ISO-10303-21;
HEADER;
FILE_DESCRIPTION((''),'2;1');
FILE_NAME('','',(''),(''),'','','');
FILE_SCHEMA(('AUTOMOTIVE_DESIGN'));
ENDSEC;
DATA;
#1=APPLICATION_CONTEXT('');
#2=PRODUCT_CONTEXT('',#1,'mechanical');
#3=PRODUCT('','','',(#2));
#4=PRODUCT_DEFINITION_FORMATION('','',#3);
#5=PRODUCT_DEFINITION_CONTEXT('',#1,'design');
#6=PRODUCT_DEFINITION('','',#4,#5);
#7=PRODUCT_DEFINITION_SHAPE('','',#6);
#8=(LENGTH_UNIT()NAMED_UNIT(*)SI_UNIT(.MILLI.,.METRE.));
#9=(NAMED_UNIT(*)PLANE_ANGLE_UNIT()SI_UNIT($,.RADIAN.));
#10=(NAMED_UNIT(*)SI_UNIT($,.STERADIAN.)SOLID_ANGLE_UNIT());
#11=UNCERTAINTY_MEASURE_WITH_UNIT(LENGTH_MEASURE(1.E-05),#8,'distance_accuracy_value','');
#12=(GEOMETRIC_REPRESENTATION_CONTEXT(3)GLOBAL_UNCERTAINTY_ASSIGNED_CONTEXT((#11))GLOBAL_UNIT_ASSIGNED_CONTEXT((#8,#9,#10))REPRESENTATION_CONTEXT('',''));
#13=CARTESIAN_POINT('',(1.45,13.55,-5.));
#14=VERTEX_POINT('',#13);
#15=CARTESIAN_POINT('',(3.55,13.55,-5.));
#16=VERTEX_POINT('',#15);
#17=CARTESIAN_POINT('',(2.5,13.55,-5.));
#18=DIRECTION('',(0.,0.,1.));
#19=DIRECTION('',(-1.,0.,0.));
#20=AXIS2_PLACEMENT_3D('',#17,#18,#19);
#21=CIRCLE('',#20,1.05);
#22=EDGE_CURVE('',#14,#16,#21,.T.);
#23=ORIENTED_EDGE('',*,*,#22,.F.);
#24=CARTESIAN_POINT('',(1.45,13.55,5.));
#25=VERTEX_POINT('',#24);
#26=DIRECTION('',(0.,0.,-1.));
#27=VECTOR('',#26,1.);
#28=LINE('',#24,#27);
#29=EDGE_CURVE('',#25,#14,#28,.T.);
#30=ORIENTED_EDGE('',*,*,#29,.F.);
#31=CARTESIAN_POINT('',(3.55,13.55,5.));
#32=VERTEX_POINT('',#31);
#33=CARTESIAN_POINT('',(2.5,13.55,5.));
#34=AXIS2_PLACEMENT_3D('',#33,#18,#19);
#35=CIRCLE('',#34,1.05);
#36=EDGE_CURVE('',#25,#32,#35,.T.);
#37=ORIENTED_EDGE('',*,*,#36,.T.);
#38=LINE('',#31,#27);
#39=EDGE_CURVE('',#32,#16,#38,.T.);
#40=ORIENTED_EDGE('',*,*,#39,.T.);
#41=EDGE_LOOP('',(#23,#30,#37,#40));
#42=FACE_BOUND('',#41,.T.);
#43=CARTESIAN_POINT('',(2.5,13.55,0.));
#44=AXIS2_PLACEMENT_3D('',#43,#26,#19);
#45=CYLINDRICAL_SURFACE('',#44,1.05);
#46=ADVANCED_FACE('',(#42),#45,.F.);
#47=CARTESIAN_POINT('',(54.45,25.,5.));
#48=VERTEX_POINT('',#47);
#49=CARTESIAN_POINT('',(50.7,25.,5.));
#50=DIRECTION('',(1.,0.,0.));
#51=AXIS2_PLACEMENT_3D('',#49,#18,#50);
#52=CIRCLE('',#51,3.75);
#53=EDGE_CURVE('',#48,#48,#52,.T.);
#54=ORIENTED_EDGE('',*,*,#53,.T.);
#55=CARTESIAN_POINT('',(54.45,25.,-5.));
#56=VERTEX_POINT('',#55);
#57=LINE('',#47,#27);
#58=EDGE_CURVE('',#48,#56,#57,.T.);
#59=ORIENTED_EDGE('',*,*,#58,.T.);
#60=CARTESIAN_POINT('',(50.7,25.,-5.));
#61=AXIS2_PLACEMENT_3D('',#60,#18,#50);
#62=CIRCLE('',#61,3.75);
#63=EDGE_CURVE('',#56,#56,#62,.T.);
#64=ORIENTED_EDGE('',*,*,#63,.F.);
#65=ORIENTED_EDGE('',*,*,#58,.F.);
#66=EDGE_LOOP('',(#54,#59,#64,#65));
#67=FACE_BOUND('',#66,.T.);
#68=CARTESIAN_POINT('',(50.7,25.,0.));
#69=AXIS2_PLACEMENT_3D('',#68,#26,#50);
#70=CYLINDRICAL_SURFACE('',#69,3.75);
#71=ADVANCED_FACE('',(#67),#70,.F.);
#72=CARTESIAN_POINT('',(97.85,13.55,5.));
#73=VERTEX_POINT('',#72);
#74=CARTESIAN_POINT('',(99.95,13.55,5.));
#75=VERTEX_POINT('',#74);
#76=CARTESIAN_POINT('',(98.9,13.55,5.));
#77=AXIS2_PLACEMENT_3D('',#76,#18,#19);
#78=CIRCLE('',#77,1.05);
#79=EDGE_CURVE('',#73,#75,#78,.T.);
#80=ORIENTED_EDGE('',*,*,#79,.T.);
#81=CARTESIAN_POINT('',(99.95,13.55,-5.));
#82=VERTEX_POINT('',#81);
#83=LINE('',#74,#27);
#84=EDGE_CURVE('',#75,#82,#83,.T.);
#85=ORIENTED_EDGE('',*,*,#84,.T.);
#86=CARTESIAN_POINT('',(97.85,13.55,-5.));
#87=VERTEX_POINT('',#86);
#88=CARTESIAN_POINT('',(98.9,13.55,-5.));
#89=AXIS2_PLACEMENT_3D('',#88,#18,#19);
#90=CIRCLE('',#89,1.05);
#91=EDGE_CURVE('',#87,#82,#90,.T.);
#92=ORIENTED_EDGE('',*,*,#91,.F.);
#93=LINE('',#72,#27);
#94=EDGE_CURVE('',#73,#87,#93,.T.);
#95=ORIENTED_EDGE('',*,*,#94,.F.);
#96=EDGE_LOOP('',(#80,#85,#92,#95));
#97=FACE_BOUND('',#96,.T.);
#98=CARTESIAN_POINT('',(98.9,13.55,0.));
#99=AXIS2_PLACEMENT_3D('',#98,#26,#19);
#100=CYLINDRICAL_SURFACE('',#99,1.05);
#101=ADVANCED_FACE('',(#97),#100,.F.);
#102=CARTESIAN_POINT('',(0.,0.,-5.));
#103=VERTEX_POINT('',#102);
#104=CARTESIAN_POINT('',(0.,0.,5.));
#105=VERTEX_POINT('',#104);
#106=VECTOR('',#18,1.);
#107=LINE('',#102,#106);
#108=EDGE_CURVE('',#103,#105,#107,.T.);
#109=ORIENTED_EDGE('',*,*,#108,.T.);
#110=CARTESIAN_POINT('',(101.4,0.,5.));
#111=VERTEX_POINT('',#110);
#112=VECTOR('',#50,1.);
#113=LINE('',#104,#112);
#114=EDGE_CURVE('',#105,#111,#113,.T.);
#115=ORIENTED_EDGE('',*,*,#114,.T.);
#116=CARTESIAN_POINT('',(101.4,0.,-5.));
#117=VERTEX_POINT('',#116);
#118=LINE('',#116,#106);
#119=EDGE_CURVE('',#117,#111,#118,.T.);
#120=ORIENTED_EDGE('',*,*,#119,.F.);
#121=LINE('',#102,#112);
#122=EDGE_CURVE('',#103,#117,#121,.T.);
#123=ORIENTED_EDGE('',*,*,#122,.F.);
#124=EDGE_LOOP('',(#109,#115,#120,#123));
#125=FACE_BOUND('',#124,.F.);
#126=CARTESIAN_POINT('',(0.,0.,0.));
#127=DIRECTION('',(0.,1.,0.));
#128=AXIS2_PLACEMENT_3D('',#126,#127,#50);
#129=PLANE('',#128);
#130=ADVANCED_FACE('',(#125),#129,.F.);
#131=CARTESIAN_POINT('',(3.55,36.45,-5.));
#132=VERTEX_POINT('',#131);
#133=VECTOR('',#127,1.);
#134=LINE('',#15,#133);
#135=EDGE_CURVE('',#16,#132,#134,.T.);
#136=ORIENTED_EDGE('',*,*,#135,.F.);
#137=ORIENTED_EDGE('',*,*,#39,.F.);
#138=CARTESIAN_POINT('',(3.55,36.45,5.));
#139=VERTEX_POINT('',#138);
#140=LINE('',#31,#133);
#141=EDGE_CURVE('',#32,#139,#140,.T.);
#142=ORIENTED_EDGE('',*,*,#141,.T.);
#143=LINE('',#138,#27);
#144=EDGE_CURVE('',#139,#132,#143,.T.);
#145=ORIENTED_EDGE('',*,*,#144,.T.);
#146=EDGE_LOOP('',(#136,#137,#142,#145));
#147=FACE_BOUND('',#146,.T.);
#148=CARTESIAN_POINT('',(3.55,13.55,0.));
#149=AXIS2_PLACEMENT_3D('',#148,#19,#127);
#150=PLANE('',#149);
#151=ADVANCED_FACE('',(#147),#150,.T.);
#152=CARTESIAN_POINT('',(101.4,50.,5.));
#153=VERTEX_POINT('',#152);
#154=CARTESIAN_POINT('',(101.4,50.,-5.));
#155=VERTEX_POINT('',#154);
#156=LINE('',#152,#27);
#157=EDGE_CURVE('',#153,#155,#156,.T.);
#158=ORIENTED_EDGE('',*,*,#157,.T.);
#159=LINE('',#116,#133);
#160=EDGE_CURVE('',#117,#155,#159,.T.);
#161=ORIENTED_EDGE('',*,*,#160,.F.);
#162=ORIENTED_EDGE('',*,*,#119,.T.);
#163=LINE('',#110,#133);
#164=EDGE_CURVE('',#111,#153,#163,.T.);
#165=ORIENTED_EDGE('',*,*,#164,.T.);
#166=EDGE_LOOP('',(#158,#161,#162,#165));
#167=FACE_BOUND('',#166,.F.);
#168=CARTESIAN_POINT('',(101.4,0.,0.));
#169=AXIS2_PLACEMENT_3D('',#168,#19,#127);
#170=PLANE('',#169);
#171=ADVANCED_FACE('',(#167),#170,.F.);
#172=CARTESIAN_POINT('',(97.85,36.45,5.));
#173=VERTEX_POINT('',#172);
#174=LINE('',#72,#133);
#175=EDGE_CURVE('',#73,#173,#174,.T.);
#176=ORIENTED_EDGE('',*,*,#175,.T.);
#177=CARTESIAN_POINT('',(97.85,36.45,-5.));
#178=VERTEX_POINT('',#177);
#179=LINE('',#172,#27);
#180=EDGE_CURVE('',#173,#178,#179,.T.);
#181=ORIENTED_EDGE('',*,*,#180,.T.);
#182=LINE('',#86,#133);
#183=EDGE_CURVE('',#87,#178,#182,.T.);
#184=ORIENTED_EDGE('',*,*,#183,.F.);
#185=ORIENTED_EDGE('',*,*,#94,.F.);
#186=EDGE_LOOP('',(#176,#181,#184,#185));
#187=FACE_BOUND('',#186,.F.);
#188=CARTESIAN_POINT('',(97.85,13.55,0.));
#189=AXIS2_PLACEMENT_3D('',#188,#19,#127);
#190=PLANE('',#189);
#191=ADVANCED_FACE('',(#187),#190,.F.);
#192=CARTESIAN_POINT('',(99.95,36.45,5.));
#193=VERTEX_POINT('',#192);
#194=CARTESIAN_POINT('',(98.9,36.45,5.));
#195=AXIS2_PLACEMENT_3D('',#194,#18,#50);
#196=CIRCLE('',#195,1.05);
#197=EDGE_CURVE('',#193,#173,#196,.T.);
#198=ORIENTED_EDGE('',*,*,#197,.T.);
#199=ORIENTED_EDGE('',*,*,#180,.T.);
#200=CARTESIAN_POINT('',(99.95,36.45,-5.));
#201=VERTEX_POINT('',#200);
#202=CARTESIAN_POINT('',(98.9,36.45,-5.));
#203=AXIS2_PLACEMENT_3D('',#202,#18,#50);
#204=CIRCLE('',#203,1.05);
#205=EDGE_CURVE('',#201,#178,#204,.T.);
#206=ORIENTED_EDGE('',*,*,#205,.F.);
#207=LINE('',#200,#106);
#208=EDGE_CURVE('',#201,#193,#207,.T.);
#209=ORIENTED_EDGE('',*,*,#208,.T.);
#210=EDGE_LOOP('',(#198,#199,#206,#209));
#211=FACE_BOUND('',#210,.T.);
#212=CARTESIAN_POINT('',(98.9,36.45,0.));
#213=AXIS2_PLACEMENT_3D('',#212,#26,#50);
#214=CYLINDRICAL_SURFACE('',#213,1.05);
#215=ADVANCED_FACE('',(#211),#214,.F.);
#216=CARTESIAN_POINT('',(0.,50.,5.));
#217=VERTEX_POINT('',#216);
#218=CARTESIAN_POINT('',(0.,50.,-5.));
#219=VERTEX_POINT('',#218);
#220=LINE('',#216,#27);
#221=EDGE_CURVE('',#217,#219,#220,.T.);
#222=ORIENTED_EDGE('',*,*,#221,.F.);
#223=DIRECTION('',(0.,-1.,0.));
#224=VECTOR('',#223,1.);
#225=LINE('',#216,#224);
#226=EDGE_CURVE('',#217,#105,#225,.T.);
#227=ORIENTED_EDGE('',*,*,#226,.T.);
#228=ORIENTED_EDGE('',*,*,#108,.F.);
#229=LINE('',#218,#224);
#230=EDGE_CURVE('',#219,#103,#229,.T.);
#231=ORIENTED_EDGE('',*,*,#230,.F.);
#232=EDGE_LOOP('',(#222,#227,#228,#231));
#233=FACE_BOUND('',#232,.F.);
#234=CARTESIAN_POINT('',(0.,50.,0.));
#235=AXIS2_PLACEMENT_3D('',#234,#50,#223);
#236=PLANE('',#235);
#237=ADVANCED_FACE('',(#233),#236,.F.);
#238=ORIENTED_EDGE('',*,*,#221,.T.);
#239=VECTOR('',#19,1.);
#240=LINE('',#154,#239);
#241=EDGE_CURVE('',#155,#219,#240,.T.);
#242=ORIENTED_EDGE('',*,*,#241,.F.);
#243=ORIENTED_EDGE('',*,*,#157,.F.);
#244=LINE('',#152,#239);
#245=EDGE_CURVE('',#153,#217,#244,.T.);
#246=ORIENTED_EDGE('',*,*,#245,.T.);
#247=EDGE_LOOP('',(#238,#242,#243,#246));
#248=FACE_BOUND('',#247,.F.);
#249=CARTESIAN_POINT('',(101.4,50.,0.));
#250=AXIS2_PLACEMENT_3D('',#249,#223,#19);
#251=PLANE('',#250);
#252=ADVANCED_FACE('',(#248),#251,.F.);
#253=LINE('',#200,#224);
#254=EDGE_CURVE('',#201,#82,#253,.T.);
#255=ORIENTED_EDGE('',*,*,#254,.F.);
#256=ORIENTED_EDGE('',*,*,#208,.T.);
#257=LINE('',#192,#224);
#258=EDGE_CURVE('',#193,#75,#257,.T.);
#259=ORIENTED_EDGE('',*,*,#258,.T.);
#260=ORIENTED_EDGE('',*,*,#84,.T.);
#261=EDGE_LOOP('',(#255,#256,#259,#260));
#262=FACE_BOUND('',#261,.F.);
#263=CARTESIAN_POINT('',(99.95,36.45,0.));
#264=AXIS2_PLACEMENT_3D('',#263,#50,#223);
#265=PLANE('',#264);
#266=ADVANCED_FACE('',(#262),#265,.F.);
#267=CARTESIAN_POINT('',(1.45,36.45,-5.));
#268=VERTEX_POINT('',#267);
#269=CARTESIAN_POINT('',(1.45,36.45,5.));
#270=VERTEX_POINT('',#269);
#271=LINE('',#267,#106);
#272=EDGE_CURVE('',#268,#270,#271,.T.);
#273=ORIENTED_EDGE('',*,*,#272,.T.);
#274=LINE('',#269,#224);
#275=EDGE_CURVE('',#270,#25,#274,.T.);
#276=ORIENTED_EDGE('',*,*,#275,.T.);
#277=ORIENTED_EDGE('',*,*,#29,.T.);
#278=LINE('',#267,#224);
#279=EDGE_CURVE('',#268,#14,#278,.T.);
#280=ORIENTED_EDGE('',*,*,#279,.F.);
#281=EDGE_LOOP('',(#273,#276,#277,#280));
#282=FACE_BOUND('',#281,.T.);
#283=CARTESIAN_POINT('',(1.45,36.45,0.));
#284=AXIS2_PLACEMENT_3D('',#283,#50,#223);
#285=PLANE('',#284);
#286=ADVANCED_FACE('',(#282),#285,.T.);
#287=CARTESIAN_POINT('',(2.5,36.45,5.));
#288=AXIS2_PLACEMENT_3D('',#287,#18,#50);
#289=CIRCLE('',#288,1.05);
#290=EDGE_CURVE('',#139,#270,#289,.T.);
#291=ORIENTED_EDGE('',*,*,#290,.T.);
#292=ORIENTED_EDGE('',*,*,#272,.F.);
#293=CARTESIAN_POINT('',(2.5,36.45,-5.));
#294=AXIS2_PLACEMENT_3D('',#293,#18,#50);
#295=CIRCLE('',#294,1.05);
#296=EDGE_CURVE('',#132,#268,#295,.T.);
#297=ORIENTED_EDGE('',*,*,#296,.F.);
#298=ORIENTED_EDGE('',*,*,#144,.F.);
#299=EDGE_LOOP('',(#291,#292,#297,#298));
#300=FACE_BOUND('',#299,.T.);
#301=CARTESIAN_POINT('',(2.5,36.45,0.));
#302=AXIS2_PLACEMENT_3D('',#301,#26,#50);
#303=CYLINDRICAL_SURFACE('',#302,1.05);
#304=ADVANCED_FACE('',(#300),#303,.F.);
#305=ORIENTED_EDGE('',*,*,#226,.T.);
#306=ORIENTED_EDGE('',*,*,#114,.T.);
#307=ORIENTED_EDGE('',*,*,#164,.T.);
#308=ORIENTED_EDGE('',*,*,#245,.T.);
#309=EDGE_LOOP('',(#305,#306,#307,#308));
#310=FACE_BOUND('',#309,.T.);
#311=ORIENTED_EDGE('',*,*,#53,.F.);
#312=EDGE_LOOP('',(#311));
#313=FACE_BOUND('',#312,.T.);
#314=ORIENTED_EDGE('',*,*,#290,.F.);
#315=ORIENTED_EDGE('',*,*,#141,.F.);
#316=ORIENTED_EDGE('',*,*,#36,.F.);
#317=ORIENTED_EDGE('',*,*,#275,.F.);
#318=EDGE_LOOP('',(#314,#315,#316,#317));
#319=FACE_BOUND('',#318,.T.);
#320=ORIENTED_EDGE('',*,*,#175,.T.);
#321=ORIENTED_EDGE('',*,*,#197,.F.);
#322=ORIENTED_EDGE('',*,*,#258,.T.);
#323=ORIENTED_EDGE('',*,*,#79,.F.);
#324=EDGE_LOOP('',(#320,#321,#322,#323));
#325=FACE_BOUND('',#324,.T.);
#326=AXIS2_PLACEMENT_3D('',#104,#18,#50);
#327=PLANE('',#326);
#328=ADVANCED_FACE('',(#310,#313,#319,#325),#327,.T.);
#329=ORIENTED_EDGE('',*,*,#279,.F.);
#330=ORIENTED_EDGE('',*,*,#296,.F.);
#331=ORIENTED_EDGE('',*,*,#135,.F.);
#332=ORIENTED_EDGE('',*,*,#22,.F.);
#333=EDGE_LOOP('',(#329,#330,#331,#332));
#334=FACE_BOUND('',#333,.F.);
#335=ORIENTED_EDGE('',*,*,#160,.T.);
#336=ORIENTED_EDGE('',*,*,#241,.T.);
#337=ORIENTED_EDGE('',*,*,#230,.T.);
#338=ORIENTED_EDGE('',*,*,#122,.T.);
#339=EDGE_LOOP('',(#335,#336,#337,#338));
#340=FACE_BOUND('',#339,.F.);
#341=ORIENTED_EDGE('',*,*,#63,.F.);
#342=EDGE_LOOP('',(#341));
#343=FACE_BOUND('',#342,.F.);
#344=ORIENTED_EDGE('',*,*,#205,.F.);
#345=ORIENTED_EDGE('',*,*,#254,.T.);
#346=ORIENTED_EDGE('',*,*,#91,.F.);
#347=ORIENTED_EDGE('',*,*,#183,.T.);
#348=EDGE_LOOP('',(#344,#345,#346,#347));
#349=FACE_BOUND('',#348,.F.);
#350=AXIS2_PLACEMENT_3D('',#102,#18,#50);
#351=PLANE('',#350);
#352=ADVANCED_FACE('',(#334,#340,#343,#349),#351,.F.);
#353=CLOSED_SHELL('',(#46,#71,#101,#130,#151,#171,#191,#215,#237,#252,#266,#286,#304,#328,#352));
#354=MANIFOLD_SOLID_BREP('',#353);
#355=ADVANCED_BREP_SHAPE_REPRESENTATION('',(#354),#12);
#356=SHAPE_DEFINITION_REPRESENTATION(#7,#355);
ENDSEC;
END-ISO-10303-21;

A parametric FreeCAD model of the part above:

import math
import FreeCAD as App
import Part
import Sketcher

V = App.Vector
Q = App.Units.Quantity

doc = App.newDocument("Part")
body = doc.addObject("PartDesign::Body", "Body")

# Sketch on XY plane
sketch1 = body.newObject("Sketcher::SketchObject", "Sketch")
sketch1.AttachmentSupport = (doc.getObject("XY_Plane"), [""])
sketch1.MapMode = "FlatFace"
sketch1.addGeometry([
    Part.LineSegment(V(0, 50, 0), V(0, 0, 0)),  # 0
    Part.LineSegment(V(0, 0, 0), V(101.4, 0, 0)),  # 1
    Part.LineSegment(V(101.4, 0, 0), V(101.4, 50, 0)),  # 2
    Part.LineSegment(V(101.4, 50, 0), V(0, 50, 0)),  # 3
    Part.ArcOfCircle(Part.Circle(V(98.9, 36.45, 0), V(0, 0, 1), 1.05), math.radians(0), math.radians(180)),  # 4
    Part.LineSegment(V(99.95, 36.45, 0), V(99.95, 13.55, 0)),  # 5
    Part.ArcOfCircle(Part.Circle(V(98.9, 13.55, 0), V(0, 0, 1), 1.05), math.radians(180), math.radians(360)),  # 6
    Part.LineSegment(V(97.85, 13.55, 0), V(97.85, 36.45, 0)),  # 7
    Part.LineSegment(V(1.45, 13.55, 0), V(1.45, 36.45, 0)),  # 8
    Part.ArcOfCircle(Part.Circle(V(2.5, 36.45, 0), V(0, 0, 1), 1.05), math.radians(0), math.radians(180)),  # 9
    Part.LineSegment(V(3.55, 36.45, 0), V(3.55, 13.55, 0)),  # 10
    Part.ArcOfCircle(Part.Circle(V(2.5, 13.55, 0), V(0, 0, 1), 1.05), math.radians(180), math.radians(360)),  # 11
    Part.Circle(V(50.7, 25, 0), V(0, 0, 1), 3.75),  # 12
], False)
sketch1.addConstraint([
    Sketcher.Constraint("Coincident", 0, 2, 1, 1),
    Sketcher.Constraint("Coincident", 1, 2, 2, 1),
    Sketcher.Constraint("Coincident", 2, 2, 3, 1),
    Sketcher.Constraint("Coincident", 3, 2, 0, 1),
    Sketcher.Constraint("Tangent", 4, 1, 5, 1),
    Sketcher.Constraint("Tangent", 5, 2, 6, 2),
    Sketcher.Constraint("Tangent", 6, 1, 7, 1),
    Sketcher.Constraint("Tangent", 7, 2, 4, 2),
    Sketcher.Constraint("Tangent", 8, 2, 9, 2),
    Sketcher.Constraint("Tangent", 9, 1, 10, 1),
    Sketcher.Constraint("Tangent", 10, 2, 11, 2),
    Sketcher.Constraint("Tangent", 11, 1, 8, 1),
    Sketcher.Constraint("Vertical", 0),
    Sketcher.Constraint("Horizontal", 1),
    Sketcher.Constraint("Vertical", 2),
    Sketcher.Constraint("Horizontal", 3),
    Sketcher.Constraint("Vertical", 5),
    Sketcher.Constraint("Vertical", 7),
    Sketcher.Constraint("Vertical", 8),
    Sketcher.Constraint("Vertical", 10),
    Sketcher.Constraint("Coincident", 0, 2, -1, 1),
    Sketcher.Constraint("Equal", 6, 9),
    Sketcher.Constraint("Horizontal", 4, 3, 9, 3),
    Sketcher.Constraint("Horizontal", 6, 3, 11, 3),
    Sketcher.Constraint("Diameter", 12, Q("7.5 mm")),
    Sketcher.Constraint("DistanceY", 0, 2, 0, 1, Q("50 mm")),
    Sketcher.Constraint("Radius", 4, Q("1.05 mm")),
    Sketcher.Constraint("DistanceX", 1, 1, 1, 2, Q("101.4 mm")),
    Sketcher.Constraint("DistanceY", -1, 1, 12, 3, Q("25 mm")),
    Sketcher.Constraint("DistanceX", -1, 1, 9, 3, Q("2.5 mm")),
    Sketcher.Constraint("DistanceX", 6, 3, 1, 2, Q("2.5 mm")),
    Sketcher.Constraint("DistanceY", 5, 2, 5, 1, Q("22.9 mm")),
    Sketcher.Constraint("DistanceX", -1, 1, 12, 3, Q("50.7 mm")),
    Sketcher.Constraint("DistanceY", -1, 1, 4, 3, Q("36.45 mm")),
])
pad1 = body.newObject("PartDesign::Pad", "Pad")
pad1.Profile = sketch1
pad1.Length = 10
pad1.Midplane = True

doc.recompute()
